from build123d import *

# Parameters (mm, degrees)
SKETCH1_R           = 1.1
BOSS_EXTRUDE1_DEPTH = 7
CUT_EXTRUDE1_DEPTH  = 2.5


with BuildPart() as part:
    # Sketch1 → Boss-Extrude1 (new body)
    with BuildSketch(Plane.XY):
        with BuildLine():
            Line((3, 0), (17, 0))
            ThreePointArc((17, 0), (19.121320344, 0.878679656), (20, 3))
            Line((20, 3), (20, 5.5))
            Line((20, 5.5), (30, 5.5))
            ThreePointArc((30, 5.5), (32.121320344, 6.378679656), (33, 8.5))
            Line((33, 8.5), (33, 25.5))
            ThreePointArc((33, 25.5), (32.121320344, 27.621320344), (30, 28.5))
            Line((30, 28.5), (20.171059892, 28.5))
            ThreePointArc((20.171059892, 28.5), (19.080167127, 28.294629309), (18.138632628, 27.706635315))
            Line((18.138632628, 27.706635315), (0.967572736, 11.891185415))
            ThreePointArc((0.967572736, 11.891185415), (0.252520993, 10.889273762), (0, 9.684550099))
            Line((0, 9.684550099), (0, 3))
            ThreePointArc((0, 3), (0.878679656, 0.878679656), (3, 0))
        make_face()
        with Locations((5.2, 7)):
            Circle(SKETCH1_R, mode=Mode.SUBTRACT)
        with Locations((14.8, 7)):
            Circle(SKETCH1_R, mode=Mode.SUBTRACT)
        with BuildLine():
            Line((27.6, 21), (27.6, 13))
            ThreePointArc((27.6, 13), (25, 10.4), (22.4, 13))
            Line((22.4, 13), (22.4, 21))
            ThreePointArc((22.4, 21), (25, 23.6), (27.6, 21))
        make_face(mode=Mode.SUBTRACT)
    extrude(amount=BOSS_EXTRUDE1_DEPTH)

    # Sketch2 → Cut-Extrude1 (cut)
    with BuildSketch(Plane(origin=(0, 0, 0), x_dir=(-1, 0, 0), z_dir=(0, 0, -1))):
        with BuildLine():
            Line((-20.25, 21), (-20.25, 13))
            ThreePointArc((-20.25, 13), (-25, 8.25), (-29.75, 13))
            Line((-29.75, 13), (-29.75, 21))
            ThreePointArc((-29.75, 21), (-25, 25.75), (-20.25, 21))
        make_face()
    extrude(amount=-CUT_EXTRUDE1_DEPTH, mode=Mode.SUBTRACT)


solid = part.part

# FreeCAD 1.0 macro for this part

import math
import FreeCAD as App
import Part
import Sketcher

V = App.Vector
Q = App.Units.Quantity

doc = App.newDocument("Part")
params = doc.addObject("Spreadsheet::Sheet", "Params")
for row, (alias, value) in enumerate([
    ("sketch1_radius", "3 mm"),
    ("sketch1_diameter", "2.2 mm"),
    ("sketch1_radius2", "2.6 mm"),
    ("sketch1_width", "14 mm"),
    ("sketch1_width2", "10 mm"),
    ("pad1_length", "7 mm"),
    ("sketch2_height", "8 mm"),
    ("sketch2_radius", "4.75 mm"),
    ("pocket1_length", "2.5 mm"),
], start=1):
    params.set(f"A{row}", alias)
    params.set(f"B{row}", "=" + value)
    params.setAlias(f"B{row}", alias)

body = doc.addObject("PartDesign::Body", "Body")

sketch1 = doc.addObject("Sketcher::SketchObject", "Sketch")
body.addObject(sketch1)
sketch1.AttachmentSupport = (doc.XY_Plane, [""])
sketch1.MapMode = "FlatFace"
sketch1.addGeometry([
    Part.LineSegment(V(3, 0, 0), V(17, 0, 0)),
    Part.ArcOfCircle(Part.Circle(V(17, 3, 0), V(0, 0, 1), 3), math.radians(-90), math.radians(0)),
    Part.LineSegment(V(20, 3, 0), V(20, 5.5, 0)),
    Part.LineSegment(V(20, 5.5, 0), V(30, 5.5, 0)),
    Part.ArcOfCircle(Part.Circle(V(30, 8.5, 0), V(0, 0, 1), 3), math.radians(-90), math.radians(0)),
    Part.LineSegment(V(33, 8.5, 0), V(33, 25.5, 0)),
    Part.ArcOfCircle(Part.Circle(V(30, 25.5, 0), V(0, 0, 1), 3), math.radians(0), math.radians(90)),
    Part.LineSegment(V(30, 28.5, 0), V(20.2, 28.5, 0)),
    Part.ArcOfCircle(Part.Circle(V(20.2, 25.5, 0), V(0, 0, 1), 3), math.radians(90), math.radians(133)),
    Part.LineSegment(V(18.1, 27.7, 0), V(1, 11.9, 0)),
    Part.ArcOfCircle(Part.Circle(V(3, 9.7, 0), V(0, 0, 1), 3), math.radians(133), math.radians(180)),
    Part.LineSegment(V(0, 9.7, 0), V(0, 3, 0)),
    Part.ArcOfCircle(Part.Circle(V(3, 3, 0), V(0, 0, 1), 3), math.radians(180), math.radians(270)),
    Part.Circle(V(5.2, 7, 0), V(0, 0, 1), 1.1),
    Part.Circle(V(14.8, 7, 0), V(0, 0, 1), 1.1),
    Part.ArcOfCircle(Part.Circle(V(25, 21, 0), V(0, 0, 1), 2.6), math.radians(0), math.radians(180)),
    Part.LineSegment(V(27.6, 21, 0), V(27.6, 13, 0)),
    Part.ArcOfCircle(Part.Circle(V(25, 13, 0), V(0, 0, 1), 2.6), math.radians(180), math.radians(360)),
    Part.LineSegment(V(22.4, 13, 0), V(22.4, 21, 0)),
], False)
sketch1.addConstraint([
    Sketcher.Constraint("Tangent", 0, 2, 1, 1),
    Sketcher.Constraint("Tangent", 1, 2, 2, 1),
    Sketcher.Constraint("Coincident", 2, 2, 3, 1),
    Sketcher.Constraint("Tangent", 3, 2, 4, 1),
    Sketcher.Constraint("Tangent", 4, 2, 5, 1),
    Sketcher.Constraint("Tangent", 5, 2, 6, 1),
    Sketcher.Constraint("Tangent", 6, 2, 7, 1),
    Sketcher.Constraint("Tangent", 7, 2, 8, 1),
    Sketcher.Constraint("Tangent", 8, 2, 9, 1),
    Sketcher.Constraint("Tangent", 9, 2, 10, 1),
    Sketcher.Constraint("Tangent", 10, 2, 11, 1),
    Sketcher.Constraint("Tangent", 11, 2, 12, 1),
    Sketcher.Constraint("Tangent", 12, 2, 0, 1),
    Sketcher.Constraint("Tangent", 15, 1, 16, 1),
    Sketcher.Constraint("Tangent", 16, 2, 17, 2),
    Sketcher.Constraint("Tangent", 17, 1, 18, 1),
    Sketcher.Constraint("Tangent", 18, 2, 15, 2),
    Sketcher.Constraint("Horizontal", 0),
    Sketcher.Constraint("Vertical", 2),
    Sketcher.Constraint("Horizontal", 3),
    Sketcher.Constraint("Vertical", 5),
    Sketcher.Constraint("Horizontal", 7),
    Sketcher.Constraint("Vertical", 11),
    Sketcher.Constraint("Vertical", 16),
    Sketcher.Constraint("Vertical", 18),
    Sketcher.Constraint("Equal", 1, 4),
    Sketcher.Constraint("Equal", 4, 6),
    Sketcher.Constraint("Equal", 6, 8),
    Sketcher.Constraint("Equal", 8, 10),
    Sketcher.Constraint("Equal", 10, 12),
    Sketcher.Constraint("Equal", 13, 14),
    Sketcher.Constraint("PointOnObject", 0, 2, -1),
    Sketcher.Constraint("PointOnObject", 10, 2, -2),
    Sketcher.Constraint("Horizontal", 13, 3, 14, 3),
    Sketcher.Constraint("Radius", 1, Q("3 mm")),
    Sketcher.Constraint("Diameter", 13, Q("2.2 mm")),
    Sketcher.Constraint("Radius", 15, Q("2.6 mm")),
    Sketcher.Constraint("DistanceX", 0, 1, 0, 2, Q("14 mm")),
    Sketcher.Constraint("DistanceX", 3, 1, 3, 2, Q("10 mm")),
    Sketcher.Constraint("DistanceY", 5, 1, 5, 2, Q("17 mm")),
    Sketcher.Constraint("DistanceY", 16, 2, 16, 1, Q("8 mm")),
    Sketcher.Constraint("DistanceY", 2, 1, 2, 2, Q("2.5 mm")),
    Sketcher.Constraint("DistanceY", -1, 1, 13, 3, Q("7 mm")),
    Sketcher.Constraint("DistanceX", -1, 1, 15, 3, Q("25 mm")),
    Sketcher.Constraint("DistanceY", -1, 1, 15, 3, Q("21 mm")),
    Sketcher.Constraint("DistanceX", -1, 1, 13, 3, Q("5.2 mm")),
    Sketcher.Constraint("DistanceX", -1, 1, 14, 3, Q("14.8 mm")),
    Sketcher.Constraint("DistanceX", 7, 2, 7, 1, Q("9.82894 mm")),
    Sketcher.Constraint("DistanceY", 11, 2, 11, 1, Q("6.68455 mm")),
])
sketch1.setExpression("Constraints[34]", "Params.sketch1_radius")
sketch1.setExpression("Constraints[35]", "Params.sketch1_diameter")
sketch1.setExpression("Constraints[36]", "Params.sketch1_radius2")
sketch1.setExpression("Constraints[37]", "Params.sketch1_width")
sketch1.setExpression("Constraints[38]", "Params.sketch1_width2")
pad1 = doc.addObject("PartDesign::Pad", "Pad")
body.addObject(pad1)
pad1.Profile = sketch1
pad1.setExpression("Length", "Params.pad1_length")

sketch2 = doc.addObject("Sketcher::SketchObject", "Sketch001")
body.addObject(sketch2)
sketch2.AttachmentSupport = (doc.XY_Plane, [""])
sketch2.MapMode = "FlatFace"
sketch2.addGeometry([
    Part.LineSegment(V(20.2, 13, 0), V(20.2, 21, 0)),
    Part.ArcOfCircle(Part.Circle(V(25, 21, 0), V(0, 0, 1), 4.8), math.radians(0), math.radians(180)),
    Part.LineSegment(V(29.8, 21, 0), V(29.8, 13, 0)),
    Part.ArcOfCircle(Part.Circle(V(25, 13, 0), V(0, 0, 1), 4.8), math.radians(180), math.radians(360)),
], False)
sketch2.addConstraint([
    Sketcher.Constraint("Tangent", 0, 2, 1, 2),
    Sketcher.Constraint("Tangent", 1, 1, 2, 1),
    Sketcher.Constraint("Tangent", 2, 2, 3, 2),
    Sketcher.Constraint("Tangent", 3, 1, 0, 1),
    Sketcher.Constraint("Vertical", 0),
    Sketcher.Constraint("Vertical", 2),
    Sketcher.Constraint("DistanceY", 0, 1, 0, 2, Q("8 mm")),
    Sketcher.Constraint("Radius", 1, Q("4.75 mm")),
    Sketcher.Constraint("DistanceX", -1, 1, 1, 3, Q("25 mm")),
    Sketcher.Constraint("DistanceY", -1, 1, 1, 3, Q("21 mm")),
])
sketch2.setExpression("Constraints[6]", "Params.sketch2_height")
sketch2.setExpression("Constraints[7]", "Params.sketch2_radius")
pocket1 = doc.addObject("PartDesign::Pocket", "Pocket")
body.addObject(pocket1)
pocket1.Profile = sketch2
pocket1.setExpression("Length", "Params.pocket1_length")
pocket1.Reversed = True

doc.recompute()
